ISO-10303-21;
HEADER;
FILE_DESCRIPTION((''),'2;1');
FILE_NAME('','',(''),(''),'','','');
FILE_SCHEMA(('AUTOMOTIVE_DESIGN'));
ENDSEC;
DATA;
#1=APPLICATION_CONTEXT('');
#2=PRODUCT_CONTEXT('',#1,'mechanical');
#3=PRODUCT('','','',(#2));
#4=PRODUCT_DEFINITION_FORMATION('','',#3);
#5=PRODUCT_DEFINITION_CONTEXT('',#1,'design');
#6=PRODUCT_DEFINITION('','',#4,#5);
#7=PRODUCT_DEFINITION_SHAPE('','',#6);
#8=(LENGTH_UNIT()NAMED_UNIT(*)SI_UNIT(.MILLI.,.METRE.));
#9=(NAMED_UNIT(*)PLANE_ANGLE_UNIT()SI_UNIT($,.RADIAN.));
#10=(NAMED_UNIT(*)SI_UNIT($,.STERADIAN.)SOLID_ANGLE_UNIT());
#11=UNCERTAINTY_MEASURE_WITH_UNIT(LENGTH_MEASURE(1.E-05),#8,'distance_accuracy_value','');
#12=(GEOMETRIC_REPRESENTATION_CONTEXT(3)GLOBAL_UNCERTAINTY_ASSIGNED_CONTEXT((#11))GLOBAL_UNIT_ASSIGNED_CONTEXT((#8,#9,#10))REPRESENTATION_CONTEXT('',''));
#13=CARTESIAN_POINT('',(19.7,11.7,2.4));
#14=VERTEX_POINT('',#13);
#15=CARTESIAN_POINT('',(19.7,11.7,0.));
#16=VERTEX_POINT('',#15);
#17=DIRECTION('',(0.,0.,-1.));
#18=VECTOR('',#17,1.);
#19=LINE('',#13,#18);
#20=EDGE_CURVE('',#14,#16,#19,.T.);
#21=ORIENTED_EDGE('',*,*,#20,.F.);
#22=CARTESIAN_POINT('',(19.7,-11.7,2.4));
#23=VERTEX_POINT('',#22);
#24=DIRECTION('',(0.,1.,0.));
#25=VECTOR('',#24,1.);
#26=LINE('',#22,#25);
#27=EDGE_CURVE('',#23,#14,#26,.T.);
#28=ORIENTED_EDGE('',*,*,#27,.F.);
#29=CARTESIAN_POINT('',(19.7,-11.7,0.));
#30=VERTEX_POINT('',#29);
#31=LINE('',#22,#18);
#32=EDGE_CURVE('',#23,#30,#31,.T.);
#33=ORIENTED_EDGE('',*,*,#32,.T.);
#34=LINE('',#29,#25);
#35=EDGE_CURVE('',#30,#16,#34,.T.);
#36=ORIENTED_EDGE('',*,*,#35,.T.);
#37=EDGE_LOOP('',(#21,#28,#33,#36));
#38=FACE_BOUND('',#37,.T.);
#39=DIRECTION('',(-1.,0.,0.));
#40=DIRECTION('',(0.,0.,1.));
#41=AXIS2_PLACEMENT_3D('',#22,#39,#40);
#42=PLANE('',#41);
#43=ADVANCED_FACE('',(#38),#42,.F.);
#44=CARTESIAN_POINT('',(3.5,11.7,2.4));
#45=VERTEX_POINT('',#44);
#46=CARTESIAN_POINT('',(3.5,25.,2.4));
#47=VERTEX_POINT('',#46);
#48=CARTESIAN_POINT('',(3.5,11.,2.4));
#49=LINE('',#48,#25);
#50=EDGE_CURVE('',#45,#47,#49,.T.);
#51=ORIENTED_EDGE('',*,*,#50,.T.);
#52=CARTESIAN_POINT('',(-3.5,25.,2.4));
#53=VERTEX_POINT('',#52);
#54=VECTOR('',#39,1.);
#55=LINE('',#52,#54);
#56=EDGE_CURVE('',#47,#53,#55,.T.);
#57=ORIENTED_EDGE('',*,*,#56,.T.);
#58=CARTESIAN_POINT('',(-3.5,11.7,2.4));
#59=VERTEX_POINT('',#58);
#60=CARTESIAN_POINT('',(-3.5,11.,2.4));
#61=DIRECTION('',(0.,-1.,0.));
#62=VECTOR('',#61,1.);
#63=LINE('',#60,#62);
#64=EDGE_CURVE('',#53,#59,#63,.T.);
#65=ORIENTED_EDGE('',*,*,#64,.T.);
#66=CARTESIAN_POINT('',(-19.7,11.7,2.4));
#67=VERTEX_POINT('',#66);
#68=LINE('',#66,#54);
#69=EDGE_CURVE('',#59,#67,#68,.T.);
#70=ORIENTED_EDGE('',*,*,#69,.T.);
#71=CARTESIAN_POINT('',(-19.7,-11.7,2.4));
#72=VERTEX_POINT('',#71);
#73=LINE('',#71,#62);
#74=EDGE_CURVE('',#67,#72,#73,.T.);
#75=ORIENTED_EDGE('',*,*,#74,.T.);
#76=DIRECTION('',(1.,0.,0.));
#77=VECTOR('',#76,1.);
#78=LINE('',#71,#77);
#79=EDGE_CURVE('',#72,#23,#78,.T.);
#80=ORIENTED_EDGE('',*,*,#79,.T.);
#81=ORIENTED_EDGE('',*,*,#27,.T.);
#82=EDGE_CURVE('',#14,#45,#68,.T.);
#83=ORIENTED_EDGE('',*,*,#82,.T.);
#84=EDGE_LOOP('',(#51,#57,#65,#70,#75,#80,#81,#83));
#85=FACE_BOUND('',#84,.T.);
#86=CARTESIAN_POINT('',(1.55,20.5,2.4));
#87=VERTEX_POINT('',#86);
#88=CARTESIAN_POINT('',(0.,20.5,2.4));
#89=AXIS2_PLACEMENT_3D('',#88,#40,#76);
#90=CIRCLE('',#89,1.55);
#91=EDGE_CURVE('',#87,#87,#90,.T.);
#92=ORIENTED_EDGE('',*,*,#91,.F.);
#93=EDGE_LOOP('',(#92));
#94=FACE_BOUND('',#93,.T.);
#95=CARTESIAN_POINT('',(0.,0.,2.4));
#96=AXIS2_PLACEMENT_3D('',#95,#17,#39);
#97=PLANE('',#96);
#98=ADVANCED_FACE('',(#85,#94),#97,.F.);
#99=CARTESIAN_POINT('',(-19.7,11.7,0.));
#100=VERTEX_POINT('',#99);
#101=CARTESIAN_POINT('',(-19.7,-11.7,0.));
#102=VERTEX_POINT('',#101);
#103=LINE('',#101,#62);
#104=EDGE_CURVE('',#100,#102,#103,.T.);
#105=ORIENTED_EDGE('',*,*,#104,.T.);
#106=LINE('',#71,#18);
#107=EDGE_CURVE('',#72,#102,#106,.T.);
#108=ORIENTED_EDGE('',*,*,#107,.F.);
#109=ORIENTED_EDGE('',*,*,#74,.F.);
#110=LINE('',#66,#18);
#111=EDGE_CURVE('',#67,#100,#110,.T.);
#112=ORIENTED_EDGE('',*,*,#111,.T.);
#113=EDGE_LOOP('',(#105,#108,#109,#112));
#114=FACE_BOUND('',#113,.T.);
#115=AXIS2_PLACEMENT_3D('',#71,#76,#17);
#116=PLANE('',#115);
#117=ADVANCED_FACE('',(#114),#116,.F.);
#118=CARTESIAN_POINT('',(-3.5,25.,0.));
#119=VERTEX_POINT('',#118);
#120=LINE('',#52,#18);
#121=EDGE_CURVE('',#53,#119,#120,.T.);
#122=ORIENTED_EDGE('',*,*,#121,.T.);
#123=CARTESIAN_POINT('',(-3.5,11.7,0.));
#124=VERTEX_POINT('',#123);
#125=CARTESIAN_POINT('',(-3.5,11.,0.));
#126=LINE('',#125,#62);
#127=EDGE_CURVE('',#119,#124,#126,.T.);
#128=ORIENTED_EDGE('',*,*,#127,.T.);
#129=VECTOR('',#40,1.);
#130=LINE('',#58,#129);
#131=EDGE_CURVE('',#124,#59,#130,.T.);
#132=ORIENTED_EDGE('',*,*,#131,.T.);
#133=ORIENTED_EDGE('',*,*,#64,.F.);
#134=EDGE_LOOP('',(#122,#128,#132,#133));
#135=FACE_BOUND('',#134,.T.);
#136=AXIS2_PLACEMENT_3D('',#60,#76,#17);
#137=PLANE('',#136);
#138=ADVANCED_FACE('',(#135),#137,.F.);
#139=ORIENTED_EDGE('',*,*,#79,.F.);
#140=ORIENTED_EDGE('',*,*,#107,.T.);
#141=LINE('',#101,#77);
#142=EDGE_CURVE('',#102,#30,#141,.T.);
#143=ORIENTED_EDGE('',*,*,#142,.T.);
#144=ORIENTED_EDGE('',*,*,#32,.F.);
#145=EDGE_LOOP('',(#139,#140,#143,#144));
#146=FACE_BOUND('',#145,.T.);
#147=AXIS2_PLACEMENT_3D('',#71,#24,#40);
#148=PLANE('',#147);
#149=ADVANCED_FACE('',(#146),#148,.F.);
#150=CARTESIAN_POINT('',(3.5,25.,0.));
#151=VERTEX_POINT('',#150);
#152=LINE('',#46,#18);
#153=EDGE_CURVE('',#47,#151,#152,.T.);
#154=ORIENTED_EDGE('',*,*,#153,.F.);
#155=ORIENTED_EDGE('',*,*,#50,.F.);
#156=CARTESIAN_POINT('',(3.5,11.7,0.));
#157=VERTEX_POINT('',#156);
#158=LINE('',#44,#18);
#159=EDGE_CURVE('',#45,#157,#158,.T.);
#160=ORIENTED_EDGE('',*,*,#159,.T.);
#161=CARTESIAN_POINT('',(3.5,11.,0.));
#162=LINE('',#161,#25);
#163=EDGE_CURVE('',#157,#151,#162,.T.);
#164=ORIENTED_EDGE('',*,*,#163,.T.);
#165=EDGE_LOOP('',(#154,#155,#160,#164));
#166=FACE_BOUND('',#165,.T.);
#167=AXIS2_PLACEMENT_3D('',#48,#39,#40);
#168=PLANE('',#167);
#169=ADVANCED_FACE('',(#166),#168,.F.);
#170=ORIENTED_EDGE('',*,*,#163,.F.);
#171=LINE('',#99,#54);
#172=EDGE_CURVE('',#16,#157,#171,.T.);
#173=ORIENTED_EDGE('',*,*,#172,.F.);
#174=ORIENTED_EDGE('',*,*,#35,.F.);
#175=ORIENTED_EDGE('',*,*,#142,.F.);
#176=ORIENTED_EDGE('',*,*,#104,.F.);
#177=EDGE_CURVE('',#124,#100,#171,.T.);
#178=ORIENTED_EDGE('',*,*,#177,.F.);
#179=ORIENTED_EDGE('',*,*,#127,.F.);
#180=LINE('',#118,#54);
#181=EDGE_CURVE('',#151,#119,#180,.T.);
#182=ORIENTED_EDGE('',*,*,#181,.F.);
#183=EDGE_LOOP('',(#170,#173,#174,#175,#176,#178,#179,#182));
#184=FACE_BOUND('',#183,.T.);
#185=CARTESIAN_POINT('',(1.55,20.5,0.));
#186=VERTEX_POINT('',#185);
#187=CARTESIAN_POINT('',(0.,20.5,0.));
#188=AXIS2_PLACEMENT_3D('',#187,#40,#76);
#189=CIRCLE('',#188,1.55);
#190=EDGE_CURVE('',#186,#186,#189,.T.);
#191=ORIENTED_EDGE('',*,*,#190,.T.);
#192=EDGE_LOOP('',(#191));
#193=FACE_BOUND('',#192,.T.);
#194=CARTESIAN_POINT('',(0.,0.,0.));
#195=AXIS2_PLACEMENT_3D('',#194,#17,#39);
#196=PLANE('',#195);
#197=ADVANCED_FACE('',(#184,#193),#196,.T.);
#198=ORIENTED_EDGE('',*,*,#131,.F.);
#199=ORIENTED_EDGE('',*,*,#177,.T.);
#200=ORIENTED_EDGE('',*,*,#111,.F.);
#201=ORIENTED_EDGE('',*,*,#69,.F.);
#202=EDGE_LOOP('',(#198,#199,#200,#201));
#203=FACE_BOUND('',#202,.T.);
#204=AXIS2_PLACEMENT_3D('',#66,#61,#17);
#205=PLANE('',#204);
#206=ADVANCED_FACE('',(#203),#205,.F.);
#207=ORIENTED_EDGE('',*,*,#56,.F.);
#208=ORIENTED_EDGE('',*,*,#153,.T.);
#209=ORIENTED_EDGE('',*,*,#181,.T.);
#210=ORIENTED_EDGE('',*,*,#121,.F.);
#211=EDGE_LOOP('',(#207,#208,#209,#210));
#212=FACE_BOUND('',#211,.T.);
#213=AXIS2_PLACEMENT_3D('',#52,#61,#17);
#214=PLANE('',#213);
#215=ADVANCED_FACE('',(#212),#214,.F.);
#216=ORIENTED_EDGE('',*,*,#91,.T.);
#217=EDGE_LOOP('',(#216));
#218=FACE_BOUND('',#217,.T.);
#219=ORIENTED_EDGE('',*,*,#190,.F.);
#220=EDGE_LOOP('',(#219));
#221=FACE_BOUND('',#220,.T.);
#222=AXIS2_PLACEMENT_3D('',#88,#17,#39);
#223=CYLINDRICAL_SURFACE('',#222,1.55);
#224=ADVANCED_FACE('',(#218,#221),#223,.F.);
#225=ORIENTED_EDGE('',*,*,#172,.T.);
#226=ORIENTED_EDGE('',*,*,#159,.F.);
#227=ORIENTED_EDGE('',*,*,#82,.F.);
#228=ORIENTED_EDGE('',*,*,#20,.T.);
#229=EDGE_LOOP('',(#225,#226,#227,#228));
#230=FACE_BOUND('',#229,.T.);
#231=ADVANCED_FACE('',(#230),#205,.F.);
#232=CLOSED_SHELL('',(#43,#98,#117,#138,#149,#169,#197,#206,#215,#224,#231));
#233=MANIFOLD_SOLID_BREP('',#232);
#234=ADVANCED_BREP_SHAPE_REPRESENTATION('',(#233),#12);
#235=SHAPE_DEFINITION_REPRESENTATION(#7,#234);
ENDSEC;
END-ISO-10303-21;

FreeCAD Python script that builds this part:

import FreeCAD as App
import Part
import Sketcher

doc = App.newDocument("Part")
body = doc.addObject("PartDesign::Body", "Body")

sketch1 = body.newObject("Sketcher::SketchObject", "Sketch")
sketch1.AttachmentSupport = (doc.getObject("XY_Plane"), [""])
sketch1.MapMode = "FlatFace"
sketch1.addGeometry(Part.LineSegment(App.Vector(-20, 12, 0), App.Vector(-20, -12, 0)), False)
sketch1.addGeometry(Part.LineSegment(App.Vector(-20, -12, 0), App.Vector(20, -12, 0)), False)
sketch1.addGeometry(Part.LineSegment(App.Vector(20, -12, 0), App.Vector(20, 12, 0)), False)
sketch1.addGeometry(Part.LineSegment(App.Vector(20, 12, 0), App.Vector(-20, 12, 0)), False)
sketch1.addConstraint(Sketcher.Constraint("Coincident", 0, 2, 1, 1))
sketch1.addConstraint(Sketcher.Constraint("Coincident", 1, 2, 2, 1))
sketch1.addConstraint(Sketcher.Constraint("Coincident", 2, 2, 3, 1))
sketch1.addConstraint(Sketcher.Constraint("Coincident", 3, 2, 0, 1))
sketch1.addConstraint(Sketcher.Constraint("Vertical", 0))
sketch1.addConstraint(Sketcher.Constraint("Horizontal", 1))
sketch1.addConstraint(Sketcher.Constraint("Vertical", 2))
sketch1.addConstraint(Sketcher.Constraint("Horizontal", 3))
sketch1.addConstraint(Sketcher.Constraint("Symmetric", 0, 2, 2, 2, -1, 1))
sketch1.addConstraint(Sketcher.Constraint("DistanceX", 1, 1, 1, 2, 39.4))
sketch1.addConstraint(Sketcher.Constraint("DistanceY", 0, 2, 0, 1, 23.4))
pad1 = body.newObject("PartDesign::Pad", "Pad")
pad1.Profile = sketch1
pad1.Length = 2.4

sketch2 = body.newObject("Sketcher::SketchObject", "Sketch001")
sketch2.AttachmentSupport = (doc.getObject("XY_Plane"), [""])
sketch2.MapMode = "FlatFace"
sketch2.addGeometry(Part.LineSegment(App.Vector(-3.5, 25, 0), App.Vector(-3.5, 11, 0)), False)
sketch2.addGeometry(Part.LineSegment(App.Vector(-3.5, 11, 0), App.Vector(3.5, 11, 0)), False)
sketch2.addGeometry(Part.LineSegment(App.Vector(3.5, 11, 0), App.Vector(3.5, 25, 0)), False)
sketch2.addGeometry(Part.LineSegment(App.Vector(3.5, 25, 0), App.Vector(-3.5, 25, 0)), False)
sketch2.addGeometry(Part.Circle(App.Vector(0, 20.5, 0), App.Vector(0, 0, 1), 1.6), False)
sketch2.addConstraint(Sketcher.Constraint("Coincident", 0, 2, 1, 1))
sketch2.addConstraint(Sketcher.Constraint("Coincident", 1, 2, 2, 1))
sketch2.addConstraint(Sketcher.Constraint("Coincident", 2, 2, 3, 1))
sketch2.addConstraint(Sketcher.Constraint("Coincident", 3, 2, 0, 1))
sketch2.addConstraint(Sketcher.Constraint("Vertical", 0))
sketch2.addConstraint(Sketcher.Constraint("Horizontal", 1))
sketch2.addConstraint(Sketcher.Constraint("Vertical", 2))
sketch2.addConstraint(Sketcher.Constraint("Horizontal", 3))
sketch2.addConstraint(Sketcher.Constraint("PointOnObject", 4, 3, -2))
sketch2.addConstraint(Sketcher.Constraint("Diameter", 4, 3.1))
sketch2.addConstraint(Sketcher.Constraint("DistanceX", 1, 1, 1, 2, 7.0))
sketch2.addConstraint(Sketcher.Constraint("DistanceY", 0, 2, 0, 1, 14.0))
sketch2.addConstraint(Sketcher.Constraint("DistanceY", -1, 1, 0, 2, 11.0))
sketch2.addConstraint(Sketcher.Constraint("DistanceY", -1, 1, 4, 3, 20.5))
sketch2.addConstraint(Sketcher.Constraint("DistanceX", 0, 2, -1, 1, 3.5))
pad2 = body.newObject("PartDesign::Pad", "Pad001")
pad2.Profile = sketch2
pad2.Length = 2.4

doc.recompute()
